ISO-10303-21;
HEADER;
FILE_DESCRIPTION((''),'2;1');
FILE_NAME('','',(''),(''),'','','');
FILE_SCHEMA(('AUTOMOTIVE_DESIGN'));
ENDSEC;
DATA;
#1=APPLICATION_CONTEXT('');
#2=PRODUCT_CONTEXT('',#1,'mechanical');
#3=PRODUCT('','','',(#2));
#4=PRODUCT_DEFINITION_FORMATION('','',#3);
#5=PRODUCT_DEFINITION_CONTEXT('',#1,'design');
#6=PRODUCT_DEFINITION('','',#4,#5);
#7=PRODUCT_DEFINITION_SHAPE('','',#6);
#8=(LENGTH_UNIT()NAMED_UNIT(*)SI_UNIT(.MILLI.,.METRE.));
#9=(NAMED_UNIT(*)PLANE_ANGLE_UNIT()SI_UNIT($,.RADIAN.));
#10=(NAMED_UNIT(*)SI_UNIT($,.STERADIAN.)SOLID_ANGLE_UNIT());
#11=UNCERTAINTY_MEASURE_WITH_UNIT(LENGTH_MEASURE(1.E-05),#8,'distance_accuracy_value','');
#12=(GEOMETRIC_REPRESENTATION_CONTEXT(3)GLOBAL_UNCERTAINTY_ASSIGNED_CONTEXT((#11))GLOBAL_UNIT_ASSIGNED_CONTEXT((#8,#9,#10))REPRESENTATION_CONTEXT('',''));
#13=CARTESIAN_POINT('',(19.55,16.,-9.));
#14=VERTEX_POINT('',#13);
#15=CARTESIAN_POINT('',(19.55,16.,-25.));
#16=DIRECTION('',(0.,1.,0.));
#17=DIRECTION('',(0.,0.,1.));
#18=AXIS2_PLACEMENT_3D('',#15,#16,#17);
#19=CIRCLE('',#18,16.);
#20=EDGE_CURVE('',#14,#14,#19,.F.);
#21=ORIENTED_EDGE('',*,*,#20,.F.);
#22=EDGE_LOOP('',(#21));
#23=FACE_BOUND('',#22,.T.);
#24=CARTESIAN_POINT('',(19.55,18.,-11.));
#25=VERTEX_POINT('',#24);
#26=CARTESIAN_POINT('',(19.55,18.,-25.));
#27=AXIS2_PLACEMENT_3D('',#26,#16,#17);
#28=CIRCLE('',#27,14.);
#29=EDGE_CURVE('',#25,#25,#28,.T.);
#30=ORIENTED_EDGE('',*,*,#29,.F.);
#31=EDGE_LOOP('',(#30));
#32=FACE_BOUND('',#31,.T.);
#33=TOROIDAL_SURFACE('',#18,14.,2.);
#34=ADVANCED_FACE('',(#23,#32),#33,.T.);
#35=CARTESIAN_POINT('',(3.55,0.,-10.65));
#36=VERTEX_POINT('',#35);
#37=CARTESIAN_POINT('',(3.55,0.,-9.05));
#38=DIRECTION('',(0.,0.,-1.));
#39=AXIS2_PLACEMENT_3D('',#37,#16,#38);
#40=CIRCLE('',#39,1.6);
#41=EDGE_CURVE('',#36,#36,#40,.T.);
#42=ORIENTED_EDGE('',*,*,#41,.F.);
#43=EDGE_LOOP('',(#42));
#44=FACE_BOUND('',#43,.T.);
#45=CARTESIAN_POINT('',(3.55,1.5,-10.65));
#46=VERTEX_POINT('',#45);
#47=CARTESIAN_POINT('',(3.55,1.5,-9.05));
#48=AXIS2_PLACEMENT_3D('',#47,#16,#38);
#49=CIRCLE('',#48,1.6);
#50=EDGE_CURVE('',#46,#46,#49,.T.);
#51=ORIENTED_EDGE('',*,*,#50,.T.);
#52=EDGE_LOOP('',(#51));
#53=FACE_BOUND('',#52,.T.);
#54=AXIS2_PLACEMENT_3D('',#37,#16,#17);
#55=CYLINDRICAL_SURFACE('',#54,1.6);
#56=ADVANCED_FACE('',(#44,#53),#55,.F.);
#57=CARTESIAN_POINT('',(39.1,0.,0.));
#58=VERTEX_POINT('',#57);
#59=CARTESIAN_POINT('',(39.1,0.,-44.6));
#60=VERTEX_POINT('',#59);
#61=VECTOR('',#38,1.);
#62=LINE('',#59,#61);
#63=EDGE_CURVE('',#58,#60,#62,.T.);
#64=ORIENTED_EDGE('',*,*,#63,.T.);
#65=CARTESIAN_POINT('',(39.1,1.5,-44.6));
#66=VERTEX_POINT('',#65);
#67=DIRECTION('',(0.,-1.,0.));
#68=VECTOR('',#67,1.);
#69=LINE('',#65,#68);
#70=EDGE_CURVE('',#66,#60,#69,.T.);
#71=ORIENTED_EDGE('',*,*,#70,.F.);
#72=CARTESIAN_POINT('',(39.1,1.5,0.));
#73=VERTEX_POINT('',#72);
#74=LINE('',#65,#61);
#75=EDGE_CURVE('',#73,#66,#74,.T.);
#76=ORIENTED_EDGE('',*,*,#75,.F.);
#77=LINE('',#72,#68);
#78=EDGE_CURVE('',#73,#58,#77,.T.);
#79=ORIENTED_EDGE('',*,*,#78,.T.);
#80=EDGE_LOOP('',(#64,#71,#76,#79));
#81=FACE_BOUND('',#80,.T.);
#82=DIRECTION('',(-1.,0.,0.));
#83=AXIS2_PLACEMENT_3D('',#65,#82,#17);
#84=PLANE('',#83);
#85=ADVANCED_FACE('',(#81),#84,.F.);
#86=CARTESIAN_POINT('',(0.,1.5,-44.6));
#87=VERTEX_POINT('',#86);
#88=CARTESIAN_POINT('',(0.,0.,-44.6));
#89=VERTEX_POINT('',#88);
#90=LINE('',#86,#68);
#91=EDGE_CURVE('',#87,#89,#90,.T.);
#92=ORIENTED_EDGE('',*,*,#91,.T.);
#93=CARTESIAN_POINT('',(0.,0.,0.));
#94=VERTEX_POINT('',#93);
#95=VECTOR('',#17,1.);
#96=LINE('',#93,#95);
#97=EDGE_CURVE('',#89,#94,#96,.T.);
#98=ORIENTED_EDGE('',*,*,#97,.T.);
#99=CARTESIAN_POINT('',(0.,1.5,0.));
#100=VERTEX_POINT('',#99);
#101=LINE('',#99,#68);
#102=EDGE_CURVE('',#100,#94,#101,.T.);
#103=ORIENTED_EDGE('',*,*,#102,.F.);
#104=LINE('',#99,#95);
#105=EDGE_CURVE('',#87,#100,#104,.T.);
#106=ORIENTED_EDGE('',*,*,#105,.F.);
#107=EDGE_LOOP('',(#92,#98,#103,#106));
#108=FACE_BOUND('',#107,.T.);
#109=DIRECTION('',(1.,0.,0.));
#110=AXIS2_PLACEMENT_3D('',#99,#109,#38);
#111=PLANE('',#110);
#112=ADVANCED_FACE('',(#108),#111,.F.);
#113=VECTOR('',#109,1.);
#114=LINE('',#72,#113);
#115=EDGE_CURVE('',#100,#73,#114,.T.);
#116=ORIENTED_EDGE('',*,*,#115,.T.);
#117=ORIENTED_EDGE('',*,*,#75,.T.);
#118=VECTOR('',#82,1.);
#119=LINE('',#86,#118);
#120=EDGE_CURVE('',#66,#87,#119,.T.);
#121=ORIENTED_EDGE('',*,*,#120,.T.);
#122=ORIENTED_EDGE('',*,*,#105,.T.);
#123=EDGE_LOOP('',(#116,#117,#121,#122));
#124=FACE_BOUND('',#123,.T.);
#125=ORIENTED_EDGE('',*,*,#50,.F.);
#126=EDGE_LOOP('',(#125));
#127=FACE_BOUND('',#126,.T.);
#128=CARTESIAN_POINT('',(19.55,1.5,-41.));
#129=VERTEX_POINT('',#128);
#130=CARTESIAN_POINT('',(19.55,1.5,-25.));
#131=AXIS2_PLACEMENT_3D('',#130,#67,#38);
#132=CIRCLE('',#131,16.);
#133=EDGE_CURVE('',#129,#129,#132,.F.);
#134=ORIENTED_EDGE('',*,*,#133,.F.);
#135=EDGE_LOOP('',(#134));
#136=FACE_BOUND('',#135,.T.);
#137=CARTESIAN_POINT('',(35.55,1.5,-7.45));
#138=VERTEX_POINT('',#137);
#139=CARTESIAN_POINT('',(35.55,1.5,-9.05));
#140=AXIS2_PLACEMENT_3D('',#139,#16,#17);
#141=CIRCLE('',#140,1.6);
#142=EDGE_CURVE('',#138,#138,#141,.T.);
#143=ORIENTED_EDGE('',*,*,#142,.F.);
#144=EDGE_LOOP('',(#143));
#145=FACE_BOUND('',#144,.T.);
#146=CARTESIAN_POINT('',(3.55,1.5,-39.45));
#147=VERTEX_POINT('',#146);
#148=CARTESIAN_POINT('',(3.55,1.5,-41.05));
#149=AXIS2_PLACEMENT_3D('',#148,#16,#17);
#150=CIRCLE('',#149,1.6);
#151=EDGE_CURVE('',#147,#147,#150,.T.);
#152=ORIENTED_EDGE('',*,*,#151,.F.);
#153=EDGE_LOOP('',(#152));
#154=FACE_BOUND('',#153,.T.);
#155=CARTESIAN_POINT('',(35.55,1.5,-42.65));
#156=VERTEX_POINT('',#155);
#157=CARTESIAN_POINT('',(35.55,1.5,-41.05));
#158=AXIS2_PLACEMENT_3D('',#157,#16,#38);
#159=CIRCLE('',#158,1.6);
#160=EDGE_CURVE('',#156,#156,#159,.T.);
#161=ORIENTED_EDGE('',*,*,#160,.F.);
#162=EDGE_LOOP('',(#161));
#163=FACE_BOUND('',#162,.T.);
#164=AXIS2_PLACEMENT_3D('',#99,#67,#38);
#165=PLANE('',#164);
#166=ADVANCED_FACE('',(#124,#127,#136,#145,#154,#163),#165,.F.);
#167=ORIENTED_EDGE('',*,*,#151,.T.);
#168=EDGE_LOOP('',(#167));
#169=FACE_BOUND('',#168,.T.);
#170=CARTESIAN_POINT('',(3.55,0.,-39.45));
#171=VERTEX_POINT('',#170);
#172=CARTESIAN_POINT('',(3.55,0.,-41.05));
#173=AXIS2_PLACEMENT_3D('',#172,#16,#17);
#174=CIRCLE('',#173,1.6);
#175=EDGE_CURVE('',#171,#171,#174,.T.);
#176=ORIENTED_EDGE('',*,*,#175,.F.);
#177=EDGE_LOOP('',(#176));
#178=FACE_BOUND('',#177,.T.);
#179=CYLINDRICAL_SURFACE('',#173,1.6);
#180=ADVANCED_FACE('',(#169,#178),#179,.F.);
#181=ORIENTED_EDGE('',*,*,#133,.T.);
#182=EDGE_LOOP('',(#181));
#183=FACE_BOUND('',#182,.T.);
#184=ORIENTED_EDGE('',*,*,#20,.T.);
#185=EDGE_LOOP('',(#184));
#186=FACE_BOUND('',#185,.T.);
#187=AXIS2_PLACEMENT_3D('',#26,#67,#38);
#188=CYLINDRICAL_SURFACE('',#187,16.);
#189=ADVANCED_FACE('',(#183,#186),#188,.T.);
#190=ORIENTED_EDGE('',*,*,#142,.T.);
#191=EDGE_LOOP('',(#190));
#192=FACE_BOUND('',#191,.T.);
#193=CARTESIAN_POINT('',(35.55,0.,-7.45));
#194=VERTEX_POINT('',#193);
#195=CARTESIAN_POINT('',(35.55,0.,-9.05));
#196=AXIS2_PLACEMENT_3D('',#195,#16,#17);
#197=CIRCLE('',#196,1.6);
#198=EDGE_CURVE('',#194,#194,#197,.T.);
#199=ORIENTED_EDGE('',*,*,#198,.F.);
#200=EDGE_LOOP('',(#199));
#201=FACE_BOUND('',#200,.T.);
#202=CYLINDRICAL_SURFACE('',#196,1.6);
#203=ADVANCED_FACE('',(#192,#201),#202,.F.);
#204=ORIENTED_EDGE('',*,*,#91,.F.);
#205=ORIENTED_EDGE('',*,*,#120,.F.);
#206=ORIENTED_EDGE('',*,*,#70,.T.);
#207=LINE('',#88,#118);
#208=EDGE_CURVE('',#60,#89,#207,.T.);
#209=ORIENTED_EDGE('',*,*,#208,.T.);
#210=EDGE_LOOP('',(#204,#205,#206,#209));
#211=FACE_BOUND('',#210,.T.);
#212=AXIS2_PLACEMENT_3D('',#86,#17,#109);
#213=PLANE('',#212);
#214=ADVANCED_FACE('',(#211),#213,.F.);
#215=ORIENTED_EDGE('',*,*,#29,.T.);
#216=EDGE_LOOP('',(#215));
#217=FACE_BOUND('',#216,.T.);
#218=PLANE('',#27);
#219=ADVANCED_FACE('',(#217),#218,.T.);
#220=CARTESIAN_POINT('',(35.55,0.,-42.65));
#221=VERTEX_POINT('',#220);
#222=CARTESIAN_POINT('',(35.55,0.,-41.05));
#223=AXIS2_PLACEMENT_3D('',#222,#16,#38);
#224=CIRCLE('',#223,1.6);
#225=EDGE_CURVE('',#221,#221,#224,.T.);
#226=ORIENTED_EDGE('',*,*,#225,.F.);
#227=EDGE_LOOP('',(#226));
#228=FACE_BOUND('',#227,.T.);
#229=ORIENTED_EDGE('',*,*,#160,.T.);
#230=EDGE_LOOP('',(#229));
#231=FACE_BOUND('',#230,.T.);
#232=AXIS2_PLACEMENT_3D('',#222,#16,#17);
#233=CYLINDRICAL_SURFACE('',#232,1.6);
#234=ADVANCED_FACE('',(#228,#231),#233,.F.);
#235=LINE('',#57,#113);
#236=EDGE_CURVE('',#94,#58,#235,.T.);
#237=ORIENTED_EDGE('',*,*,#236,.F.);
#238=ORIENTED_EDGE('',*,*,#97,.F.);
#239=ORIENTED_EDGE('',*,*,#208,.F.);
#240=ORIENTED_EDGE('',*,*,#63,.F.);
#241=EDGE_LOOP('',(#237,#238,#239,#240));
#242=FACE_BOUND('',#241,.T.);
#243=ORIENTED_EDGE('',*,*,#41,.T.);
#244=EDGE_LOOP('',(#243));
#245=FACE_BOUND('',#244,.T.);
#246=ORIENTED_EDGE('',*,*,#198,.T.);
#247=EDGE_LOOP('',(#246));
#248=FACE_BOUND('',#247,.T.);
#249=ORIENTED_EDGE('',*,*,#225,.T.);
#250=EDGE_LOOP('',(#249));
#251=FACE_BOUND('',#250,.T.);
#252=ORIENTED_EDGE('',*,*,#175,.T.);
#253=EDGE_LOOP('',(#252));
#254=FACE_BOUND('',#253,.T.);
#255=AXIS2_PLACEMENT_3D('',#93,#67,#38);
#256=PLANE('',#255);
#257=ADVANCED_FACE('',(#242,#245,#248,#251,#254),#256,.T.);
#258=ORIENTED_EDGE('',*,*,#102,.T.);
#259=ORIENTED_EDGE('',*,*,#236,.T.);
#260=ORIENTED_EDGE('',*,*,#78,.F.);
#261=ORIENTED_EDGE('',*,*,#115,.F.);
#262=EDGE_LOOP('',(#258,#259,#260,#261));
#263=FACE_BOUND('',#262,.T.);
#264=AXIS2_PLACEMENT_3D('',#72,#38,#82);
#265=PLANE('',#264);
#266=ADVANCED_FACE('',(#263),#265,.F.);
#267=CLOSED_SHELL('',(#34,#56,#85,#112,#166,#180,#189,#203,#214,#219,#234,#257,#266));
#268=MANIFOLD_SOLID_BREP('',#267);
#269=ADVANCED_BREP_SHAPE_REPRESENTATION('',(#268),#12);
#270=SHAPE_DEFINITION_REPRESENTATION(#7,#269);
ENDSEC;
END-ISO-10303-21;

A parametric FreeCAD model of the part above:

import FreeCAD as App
import Part
import Sketcher
from FreeCAD import Vector
Q = App.Units.Quantity


def edges_at(feature, points):
    """Names of the edges that pass closest to the given points."""
    edges = feature.Shape.Edges
    near = lambda p: min(range(len(edges)), key=lambda i: edges[i].distToShape(Part.Vertex(*p))[0])
    return sorted({f"Edge{near(p) + 1}" for p in points})

doc = App.newDocument("Part")
body = doc.addObject("PartDesign::Body", "Body")

sketch1 = body.newObject("Sketcher::SketchObject", "Sketch")
sketch1.AttachmentSupport = (doc.getObject("XZ_Plane"), [""])
sketch1.MapMode = "FlatFace"
sketch1.addGeometry(Part.LineSegment(Vector(0, -45, 0), Vector(0, 0, 0)), False)
sketch1.addGeometry(Part.LineSegment(Vector(0, 0, 0), Vector(39, 0, 0)), False)
sketch1.addGeometry(Part.LineSegment(Vector(39, 0, 0), Vector(39, -45, 0)), False)
sketch1.addGeometry(Part.LineSegment(Vector(39, -45, 0), Vector(0, -45, 0)), False)
sketch1.addConstraint(Sketcher.Constraint("Coincident", 0, 2, 1, 1))
sketch1.addConstraint(Sketcher.Constraint("Coincident", 1, 2, 2, 1))
sketch1.addConstraint(Sketcher.Constraint("Coincident", 2, 2, 3, 1))
sketch1.addConstraint(Sketcher.Constraint("Coincident", 3, 2, 0, 1))
sketch1.addConstraint(Sketcher.Constraint("Vertical", 0))
sketch1.addConstraint(Sketcher.Constraint("Horizontal", 1))
sketch1.addConstraint(Sketcher.Constraint("Vertical", 2))
sketch1.addConstraint(Sketcher.Constraint("Horizontal", 3))
sketch1.addConstraint(Sketcher.Constraint("Coincident", 0, 2, -1, 1))
sketch1.addConstraint(Sketcher.Constraint("DistanceX", 1, 1, 1, 2, Q("39.1 mm")))
sketch1.addConstraint(Sketcher.Constraint("DistanceY", 0, 1, 0, 2, Q("44.6 mm")))
pad1 = body.newObject("PartDesign::Pad", "Pad")
pad1.Profile = sketch1
pad1.Length = 1.5
pad1.Reversed = True

sketch2 = body.newObject("Sketcher::SketchObject", "Sketch001")
sketch2.AttachmentSupport = (doc.getObject("XZ_Plane"), [""])
sketch2.MapMode = "FlatFace"
sketch2.AttachmentOffset = App.Placement(Vector(0, 0, -1.5), App.Rotation())
sketch2.addGeometry(Part.Circle(Vector(35.5, -9.1, 0), Vector(0, 0, 1), 1.6), False)
sketch2.addGeometry(Part.Circle(Vector(35.5, -41, 0), Vector(0, 0, 1), 1.6), False)
sketch2.addGeometry(Part.Circle(Vector(3.5, -41, 0), Vector(0, 0, 1), 1.6), False)
sketch2.addGeometry(Part.Circle(Vector(3.5, -9.1, 0), Vector(0, 0, 1), 1.6), False)
sketch2.addConstraint(Sketcher.Constraint("Equal", 0, 1))
sketch2.addConstraint(Sketcher.Constraint("Equal", 1, 2))
sketch2.addConstraint(Sketcher.Constraint("Equal", 2, 3))
sketch2.addConstraint(Sketcher.Constraint("Horizontal", 1, 3, 2, 3))
sketch2.addConstraint(Sketcher.Constraint("Horizontal", 0, 3, 3, 3))
sketch2.addConstraint(Sketcher.Constraint("Vertical", 0, 3, 1, 3))
sketch2.addConstraint(Sketcher.Constraint("Vertical", 2, 3, 3, 3))
sketch2.addConstraint(Sketcher.Constraint("Diameter", 0, Q("3.2 mm")))
sketch2.addConstraint(Sketcher.Constraint("DistanceY", 1, 3, 0, 3, Q("32 mm")))
sketch2.addConstraint(Sketcher.Constraint("DistanceX", 2, 3, 1, 3, Q("32 mm")))
sketch2.addConstraint(Sketcher.Constraint("DistanceX", -1, 1, 0, 3, Q("35.55 mm")))
sketch2.addConstraint(Sketcher.Constraint("DistanceY", 0, 3, -1, 1, Q("9.05 mm")))
pocket1 = body.newObject("PartDesign::Pocket", "Pocket")
pocket1.Profile = sketch2
pocket1.Length = 1.5
pocket1.Reversed = True

sketch3 = body.newObject("Sketcher::SketchObject", "Sketch002")
sketch3.AttachmentSupport = (doc.getObject("XZ_Plane"), [""])
sketch3.MapMode = "FlatFace"
sketch3.AttachmentOffset = App.Placement(Vector(0, 0, -1.5), App.Rotation())
sketch3.addGeometry(Part.Circle(Vector(20, -25, 0), Vector(0, 0, 1), 16), False)
sketch3.addConstraint(Sketcher.Constraint("Diameter", 0, Q("32 mm")))
sketch3.addConstraint(Sketcher.Constraint("DistanceY", 0, 3, -1, 1, Q("25 mm")))
sketch3.addConstraint(Sketcher.Constraint("DistanceX", -1, 1, 0, 3, Q("19.55 mm")))
pad2 = body.newObject("PartDesign::Pad", "Pad001")
pad2.Profile = sketch3
pad2.Length = 16.5
pad2.Reversed = True
doc.recompute()

fillet = body.newObject("PartDesign::Fillet", "Fillet")
fillet.Base = (pad2, edges_at(pad2, [(3.55, 18, -25)]))
fillet.Radius = 2

doc.recompute()
